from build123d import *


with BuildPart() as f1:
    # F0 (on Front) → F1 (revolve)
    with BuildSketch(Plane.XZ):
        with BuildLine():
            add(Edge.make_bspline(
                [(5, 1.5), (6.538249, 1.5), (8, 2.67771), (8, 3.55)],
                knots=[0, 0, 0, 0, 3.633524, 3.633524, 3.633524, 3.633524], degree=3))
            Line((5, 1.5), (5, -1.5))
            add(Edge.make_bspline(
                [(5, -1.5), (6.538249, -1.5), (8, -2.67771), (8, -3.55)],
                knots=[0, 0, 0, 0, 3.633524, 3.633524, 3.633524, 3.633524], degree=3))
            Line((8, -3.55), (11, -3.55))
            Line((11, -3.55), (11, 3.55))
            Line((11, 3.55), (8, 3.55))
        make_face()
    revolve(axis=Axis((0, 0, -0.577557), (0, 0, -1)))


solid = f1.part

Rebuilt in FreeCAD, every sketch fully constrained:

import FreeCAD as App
import Part
import Sketcher
from FreeCAD import Vector

doc = App.newDocument("Part")
body = doc.addObject("PartDesign::Body", "Body")

# Sketch on XZ plane
sketch1 = body.newObject("Sketcher::SketchObject", "Sketch")
sketch1.AttachmentSupport = (doc.getObject("XZ_Plane"), [""])
sketch1.MapMode = "FlatFace"
sketch1.addGeometry([
    Part.BSplineCurve([Vector(5, 1.5, 0), Vector(6.538249, 1.5, 0), Vector(8, 2.67771, 0), Vector(8, 3.55, 0)], [4, 4], [0, 3.633524], False, 3, [1, 1, 1, 1], False),  # 0
    Part.LineSegment(Vector(5, 1.5, 0), Vector(5, -1.5, 0)),  # 1
    Part.BSplineCurve([Vector(5, -1.5, 0), Vector(6.538249, -1.5, 0), Vector(8, -2.67771, 0), Vector(8, -3.55, 0)], [4, 4], [0, 3.633524], False, 3, [1, 1, 1, 1], False),  # 2
    Part.LineSegment(Vector(8, -3.55, 0), Vector(11, -3.55, 0)),  # 3
    Part.LineSegment(Vector(11, -3.55, 0), Vector(11, 3.55, 0)),  # 4
    Part.LineSegment(Vector(11, 3.55, 0), Vector(8, 3.55, 0)),  # 5
], False)
sketch1.addConstraint([
    Sketcher.Constraint("Block", 0),
    Sketcher.Constraint("Block", 2),
    Sketcher.Constraint("Coincident", 0, 1, 1, 1),
    Sketcher.Constraint("Coincident", 1, 2, 2, 1),
    Sketcher.Constraint("Coincident", 2, 2, 3, 1),
    Sketcher.Constraint("Coincident", 3, 2, 4, 1),
    Sketcher.Constraint("Coincident", 4, 2, 5, 1),
    Sketcher.Constraint("Coincident", 5, 2, 0, 2),
    Sketcher.Constraint("Horizontal", 3),
    Sketcher.Constraint("Vertical", 4),
    Sketcher.Constraint("Horizontal", 5),
    Sketcher.Constraint("Equal", 5, 1),
])
revolution = body.newObject("PartDesign::Revolution", "Revolution")
revolution.Profile = sketch1
revolution.ReferenceAxis = (sketch1, ["V_Axis"])
revolution.Angle = 360

doc.recompute()
